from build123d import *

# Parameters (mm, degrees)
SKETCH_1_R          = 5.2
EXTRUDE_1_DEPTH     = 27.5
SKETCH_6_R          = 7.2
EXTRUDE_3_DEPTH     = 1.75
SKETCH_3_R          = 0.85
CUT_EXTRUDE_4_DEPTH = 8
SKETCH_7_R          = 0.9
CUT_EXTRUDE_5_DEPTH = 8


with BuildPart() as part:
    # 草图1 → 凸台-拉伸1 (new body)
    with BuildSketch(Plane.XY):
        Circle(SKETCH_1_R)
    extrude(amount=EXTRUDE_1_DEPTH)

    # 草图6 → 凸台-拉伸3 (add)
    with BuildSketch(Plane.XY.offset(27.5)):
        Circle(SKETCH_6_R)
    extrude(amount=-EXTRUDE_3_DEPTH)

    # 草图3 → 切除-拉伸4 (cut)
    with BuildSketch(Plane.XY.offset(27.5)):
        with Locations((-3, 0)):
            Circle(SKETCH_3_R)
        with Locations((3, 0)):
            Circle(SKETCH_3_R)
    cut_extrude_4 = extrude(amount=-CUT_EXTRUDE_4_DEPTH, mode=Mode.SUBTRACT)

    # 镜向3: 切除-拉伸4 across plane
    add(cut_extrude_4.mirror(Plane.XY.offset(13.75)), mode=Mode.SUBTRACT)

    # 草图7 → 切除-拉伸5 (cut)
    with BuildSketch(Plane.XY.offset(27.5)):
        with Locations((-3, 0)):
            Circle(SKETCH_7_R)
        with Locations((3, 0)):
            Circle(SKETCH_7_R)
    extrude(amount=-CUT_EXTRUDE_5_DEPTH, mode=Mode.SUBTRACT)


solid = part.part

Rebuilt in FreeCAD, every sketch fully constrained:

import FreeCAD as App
import Part
import Sketcher

doc = App.newDocument("Part")
body = doc.addObject("PartDesign::Body", "Body")

# Sketch on XY plane
sketch1 = body.newObject("Sketcher::SketchObject", "Sketch")
sketch1.AttachmentSupport = (doc.getObject("XY_Plane"), [""])
sketch1.MapMode = "FlatFace"
sketch1.addGeometry(Part.Circle(App.Vector(0, 0, 0), App.Vector(0, 0, 1), 5.2), False)
sketch1.addConstraint([
    Sketcher.Constraint("Coincident", 0, 3, -1, 1),
    Sketcher.Constraint("Diameter", 0, 10.4),
])
pad1 = body.newObject("PartDesign::Pad", "Pad")
pad1.Profile = sketch1
pad1.Length = 27.5

# Sketch on XY plane
sketch2 = body.newObject("Sketcher::SketchObject", "Sketch001")
sketch2.AttachmentSupport = (doc.getObject("XY_Plane"), [""])
sketch2.MapMode = "FlatFace"
sketch2.AttachmentOffset = App.Placement(App.Vector(0, 0, 27.5), App.Rotation())
sketch2.addGeometry(Part.Circle(App.Vector(0, 0, 0), App.Vector(0, 0, 1), 7.2), False)
sketch2.addConstraint([
    Sketcher.Constraint("Coincident", 0, 3, -1, 1),
    Sketcher.Constraint("Diameter", 0, 14.4),
])
pad2 = body.newObject("PartDesign::Pad", "Pad001")
pad2.Profile = sketch2
pad2.Length = 1.75
pad2.Reversed = True

# Sketch on XY plane
sketch3 = body.newObject("Sketcher::SketchObject", "Sketch002")
sketch3.AttachmentSupport = (doc.getObject("XY_Plane"), [""])
sketch3.MapMode = "FlatFace"
sketch3.AttachmentOffset = App.Placement(App.Vector(0, 0, 27.5), App.Rotation())
sketch3.addGeometry([
    Part.Circle(App.Vector(-3, 0, 0), App.Vector(0, 0, 1), 0.85),
    Part.Circle(App.Vector(3, 0, 0), App.Vector(0, 0, 1), 0.85),
], False)
sketch3.addConstraint([
    Sketcher.Constraint("Equal", 0, 1),
    Sketcher.Constraint("Symmetric", 0, 3, 1, 3, -1, 1),
    Sketcher.Constraint("PointOnObject", 0, 3, -1),
    Sketcher.Constraint("Diameter", 0, 1.7),
    Sketcher.Constraint("DistanceX", 0, 3, -1, 1, 3.0),
])
pocket1 = body.newObject("PartDesign::Pocket", "Pocket")
pocket1.Profile = sketch3
pocket1.Length = 8
doc.recompute()

datumplane = body.newObject("PartDesign::Plane", "DatumPlane")
datumplane.AttachmentSupport = (doc.getObject("XY_Plane"), [""])
datumplane.MapMode = "FlatFace"
datumplane.AttachmentOffset = App.Placement(App.Vector(0, 0, 13.75), App.Rotation())
mirrored = body.newObject("PartDesign::Mirrored", "Mirrored")
mirrored.Originals = [pocket1]
mirrored.MirrorPlane = (datumplane, [""])
body.Tip = mirrored

# Sketch on XY plane
sketch4 = body.newObject("Sketcher::SketchObject", "Sketch003")
sketch4.AttachmentSupport = (doc.getObject("XY_Plane"), [""])
sketch4.MapMode = "FlatFace"
sketch4.AttachmentOffset = App.Placement(App.Vector(0, 0, 27.5), App.Rotation())
sketch4.addGeometry([
    Part.Circle(App.Vector(-3, 0, 0), App.Vector(0, 0, 1), 0.9),
    Part.Circle(App.Vector(3, 0, 0), App.Vector(0, 0, 1), 0.9),
], False)
sketch4.addConstraint([
    Sketcher.Constraint("Equal", 0, 1),
    Sketcher.Constraint("Symmetric", 0, 3, 1, 3, -1, 1),
    Sketcher.Constraint("PointOnObject", 0, 3, -1),
    Sketcher.Constraint("Diameter", 0, 1.8),
    Sketcher.Constraint("DistanceX", 0, 3, -1, 1, 3.0),
])
pocket2 = body.newObject("PartDesign::Pocket", "Pocket001")
pocket2.Profile = sketch4
pocket2.Length = 8

doc.recompute()
